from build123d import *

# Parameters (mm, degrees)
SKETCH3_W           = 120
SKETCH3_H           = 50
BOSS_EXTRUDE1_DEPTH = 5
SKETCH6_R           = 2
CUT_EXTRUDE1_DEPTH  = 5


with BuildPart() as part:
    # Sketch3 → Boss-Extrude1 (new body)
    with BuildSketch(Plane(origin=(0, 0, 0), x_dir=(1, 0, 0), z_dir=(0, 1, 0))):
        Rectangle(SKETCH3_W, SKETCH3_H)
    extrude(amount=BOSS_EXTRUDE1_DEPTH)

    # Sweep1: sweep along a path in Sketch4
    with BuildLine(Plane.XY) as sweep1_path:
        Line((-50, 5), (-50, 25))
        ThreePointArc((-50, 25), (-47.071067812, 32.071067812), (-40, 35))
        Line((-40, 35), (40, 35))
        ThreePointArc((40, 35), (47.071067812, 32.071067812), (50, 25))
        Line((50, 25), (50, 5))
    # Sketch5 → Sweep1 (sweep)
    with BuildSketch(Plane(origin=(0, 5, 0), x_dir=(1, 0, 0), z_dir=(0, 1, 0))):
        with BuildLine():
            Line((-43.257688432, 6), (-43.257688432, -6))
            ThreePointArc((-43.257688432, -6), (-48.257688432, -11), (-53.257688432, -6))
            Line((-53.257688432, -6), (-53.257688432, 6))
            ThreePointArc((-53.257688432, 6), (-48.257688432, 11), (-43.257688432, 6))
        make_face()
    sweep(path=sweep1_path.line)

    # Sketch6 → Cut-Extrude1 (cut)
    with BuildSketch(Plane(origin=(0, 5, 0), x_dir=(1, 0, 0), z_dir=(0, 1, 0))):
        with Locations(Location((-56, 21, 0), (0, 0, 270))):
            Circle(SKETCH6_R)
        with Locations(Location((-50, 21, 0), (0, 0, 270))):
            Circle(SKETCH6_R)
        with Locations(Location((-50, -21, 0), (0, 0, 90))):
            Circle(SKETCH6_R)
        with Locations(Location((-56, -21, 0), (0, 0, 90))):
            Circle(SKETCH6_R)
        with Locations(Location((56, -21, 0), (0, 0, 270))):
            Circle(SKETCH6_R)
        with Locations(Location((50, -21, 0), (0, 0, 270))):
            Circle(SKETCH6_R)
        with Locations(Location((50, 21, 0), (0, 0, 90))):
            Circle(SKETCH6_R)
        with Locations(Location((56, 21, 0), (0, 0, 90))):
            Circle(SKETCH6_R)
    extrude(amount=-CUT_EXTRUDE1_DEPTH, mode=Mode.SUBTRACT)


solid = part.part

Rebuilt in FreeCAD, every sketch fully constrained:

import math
import FreeCAD as App
import Part
import Sketcher

doc = App.newDocument("Part")
body = doc.addObject("PartDesign::Body", "Body")

# Sketch on XZ plane
sketch1 = doc.addObject("Sketcher::SketchObject", "Sketch")
body.addObject(sketch1)
sketch1.AttachmentSupport = (doc.XZ_Plane, [""])
sketch1.MapMode = "FlatFace"
sketch1.addGeometry([
    Part.LineSegment(App.Vector(-60, -25, 0), App.Vector(-60, 25, 0)),
    Part.LineSegment(App.Vector(-60, 25, 0), App.Vector(60, 25, 0)),
    Part.LineSegment(App.Vector(60, 25, 0), App.Vector(60, -25, 0)),
    Part.LineSegment(App.Vector(60, -25, 0), App.Vector(-60, -25, 0)),
], False)
sketch1.addConstraint([
    Sketcher.Constraint("Coincident", 0, 2, 1, 1),
    Sketcher.Constraint("Coincident", 1, 2, 2, 1),
    Sketcher.Constraint("Coincident", 2, 2, 3, 1),
    Sketcher.Constraint("Coincident", 3, 2, 0, 1),
    Sketcher.Constraint("Vertical", 0),
    Sketcher.Constraint("Horizontal", 1),
    Sketcher.Constraint("Vertical", 2),
    Sketcher.Constraint("Horizontal", 3),
    Sketcher.Constraint("Symmetric", 0, 2, 2, 2, -1, 1),
    Sketcher.Constraint("DistanceX", 1, 1, 1, 2, 120.0),
    Sketcher.Constraint("DistanceY", 0, 1, 0, 2, 50.0),
])
pad1 = doc.addObject("PartDesign::Pad", "Pad")
body.addObject(pad1)
pad1.Profile = sketch1
pad1.Length = 5
pad1.Reversed = True

# Sketch on XZ plane
sketch2 = doc.addObject("Sketcher::SketchObject", "Sketch001")
body.addObject(sketch2)
sketch2.AttachmentSupport = (doc.XZ_Plane, [""])
sketch2.MapMode = "FlatFace"
sketch2.AttachmentOffset = App.Placement(App.Vector(0, 0, -5), App.Rotation())
sketch2.addGeometry([
    Part.LineSegment(App.Vector(-43, 6, 0), App.Vector(-43, -6, 0)),
    Part.ArcOfCircle(Part.Circle(App.Vector(-48, -6, 0), App.Vector(0, 0, 1), 5), math.radians(180), math.radians(360)),
    Part.LineSegment(App.Vector(-53, -6, 0), App.Vector(-53, 6, 0)),
    Part.ArcOfCircle(Part.Circle(App.Vector(-48, 6, 0), App.Vector(0, 0, 1), 5), math.radians(0), math.radians(180)),
], False)
sketch2.addConstraint([
    Sketcher.Constraint("Tangent", 0, 2, 1, 2),
    Sketcher.Constraint("Tangent", 1, 1, 2, 1),
    Sketcher.Constraint("Tangent", 2, 2, 3, 2),
    Sketcher.Constraint("Tangent", 3, 1, 0, 1),
    Sketcher.Constraint("Vertical", 0),
    Sketcher.Constraint("Vertical", 2),
    Sketcher.Constraint("Radius", 1, 5.0),
    Sketcher.Constraint("DistanceY", 0, 2, 0, 1, 12.0),
    Sketcher.Constraint("DistanceY", 1, 3, -1, 1, 6.0),
    Sketcher.Constraint("DistanceX", 1, 3, -1, 1, 48.257688),
])

# Sketch on XY plane
sketch3 = doc.addObject("Sketcher::SketchObject", "Sketch002")
body.addObject(sketch3)
sketch3.AttachmentSupport = (doc.XY_Plane, [""])
sketch3.MapMode = "FlatFace"
sketch3.addGeometry([
    Part.LineSegment(App.Vector(-50, 5, 0), App.Vector(-50, 25, 0)),  # 0
    Part.ArcOfCircle(Part.Circle(App.Vector(-40, 25, 0), App.Vector(0, 0, 1), 10), math.radians(90), math.radians(180)),  # 1
    Part.LineSegment(App.Vector(-40, 35, 0), App.Vector(40, 35, 0)),  # 2
    Part.ArcOfCircle(Part.Circle(App.Vector(40, 25, 0), App.Vector(0, 0, 1), 10), math.radians(0), math.radians(90)),  # 3
    Part.LineSegment(App.Vector(50, 25, 0), App.Vector(50, 5, 0)),  # 4
], False)
sketch3.addConstraint([
    Sketcher.Constraint("Tangent", 0, 2, 1, 2),
    Sketcher.Constraint("Tangent", 1, 1, 2, 1),
    Sketcher.Constraint("Tangent", 2, 2, 3, 2),
    Sketcher.Constraint("Tangent", 3, 1, 4, 1),
    Sketcher.Constraint("Vertical", 0),
    Sketcher.Constraint("Horizontal", 2),
    Sketcher.Constraint("Vertical", 4),
    Sketcher.Constraint("Equal", 1, 3),
    Sketcher.Constraint("Symmetric", 0, 1, 4, 2, -2),
    Sketcher.Constraint("Radius", 1, 10.0),
    Sketcher.Constraint("DistanceX", 2, 1, 2, 2, 80.0),
    Sketcher.Constraint("DistanceY", 0, 1, 0, 2, 20.0),
    Sketcher.Constraint("DistanceY", -1, 1, 1, 3, 25.0),
])
doc.recompute()

additivepipe = doc.addObject("PartDesign::AdditivePipe", "AdditivePipe")
body.addObject(additivepipe)
additivepipe.Profile = sketch2
additivepipe.Spine = (sketch3, ["Edge1", "Edge2", "Edge3", "Edge4", "Edge5"])

# Sketch on XZ plane
sketch4 = doc.addObject("Sketcher::SketchObject", "Sketch003")
body.addObject(sketch4)
sketch4.AttachmentSupport = (doc.XZ_Plane, [""])
sketch4.MapMode = "FlatFace"
sketch4.AttachmentOffset = App.Placement(App.Vector(0, 0, -5), App.Rotation())
sketch4.addGeometry([
    Part.Circle(App.Vector(-56, -21, 0), App.Vector(0, 0, 1), 2),  # 0
    Part.Circle(App.Vector(-50, -21, 0), App.Vector(0, 0, 1), 2),  # 1
    Part.Circle(App.Vector(-50, 21, 0), App.Vector(0, 0, 1), 2),  # 2
    Part.Circle(App.Vector(-56, 21, 0), App.Vector(0, 0, 1), 2),  # 3
    Part.Circle(App.Vector(56, 21, 0), App.Vector(0, 0, 1), 2),  # 4
    Part.Circle(App.Vector(50, 21, 0), App.Vector(0, 0, 1), 2),  # 5
    Part.Circle(App.Vector(50, -21, 0), App.Vector(0, 0, 1), 2),  # 6
    Part.Circle(App.Vector(56, -21, 0), App.Vector(0, 0, 1), 2),  # 7
], False)
sketch4.addConstraint([
    Sketcher.Constraint("Equal", 0, 1),
    Sketcher.Constraint("Equal", 1, 2),
    Sketcher.Constraint("Equal", 2, 3),
    Sketcher.Constraint("Equal", 3, 4),
    Sketcher.Constraint("Equal", 4, 5),
    Sketcher.Constraint("Equal", 5, 6),
    Sketcher.Constraint("Equal", 6, 7),
    Sketcher.Constraint("Symmetric", 0, 3, 4, 3, -1, 1),
    Sketcher.Constraint("Symmetric", 1, 3, 5, 3, -1, 1),
    Sketcher.Constraint("Symmetric", 2, 3, 6, 3, -1, 1),
    Sketcher.Constraint("Symmetric", 3, 3, 7, 3, -1, 1),
    Sketcher.Constraint("Symmetric", 3, 3, 4, 3, -2),
    Sketcher.Constraint("Symmetric", 2, 3, 5, 3, -2),
    Sketcher.Constraint("Horizontal", 0, 3, 1, 3),
    Sketcher.Constraint("Diameter", 0, 4.0),
    Sketcher.Constraint("DistanceX", 0, 3, -1, 1, 56.0),
    Sketcher.Constraint("DistanceY", 0, 3, -1, 1, 21.0),
    Sketcher.Constraint("DistanceX", 1, 3, -1, 1, 50.0),
])
pocket1 = doc.addObject("PartDesign::Pocket", "Pocket")
body.addObject(pocket1)
pocket1.Profile = sketch4
pocket1.Length = 5
pocket1.Reversed = True

doc.recompute()
